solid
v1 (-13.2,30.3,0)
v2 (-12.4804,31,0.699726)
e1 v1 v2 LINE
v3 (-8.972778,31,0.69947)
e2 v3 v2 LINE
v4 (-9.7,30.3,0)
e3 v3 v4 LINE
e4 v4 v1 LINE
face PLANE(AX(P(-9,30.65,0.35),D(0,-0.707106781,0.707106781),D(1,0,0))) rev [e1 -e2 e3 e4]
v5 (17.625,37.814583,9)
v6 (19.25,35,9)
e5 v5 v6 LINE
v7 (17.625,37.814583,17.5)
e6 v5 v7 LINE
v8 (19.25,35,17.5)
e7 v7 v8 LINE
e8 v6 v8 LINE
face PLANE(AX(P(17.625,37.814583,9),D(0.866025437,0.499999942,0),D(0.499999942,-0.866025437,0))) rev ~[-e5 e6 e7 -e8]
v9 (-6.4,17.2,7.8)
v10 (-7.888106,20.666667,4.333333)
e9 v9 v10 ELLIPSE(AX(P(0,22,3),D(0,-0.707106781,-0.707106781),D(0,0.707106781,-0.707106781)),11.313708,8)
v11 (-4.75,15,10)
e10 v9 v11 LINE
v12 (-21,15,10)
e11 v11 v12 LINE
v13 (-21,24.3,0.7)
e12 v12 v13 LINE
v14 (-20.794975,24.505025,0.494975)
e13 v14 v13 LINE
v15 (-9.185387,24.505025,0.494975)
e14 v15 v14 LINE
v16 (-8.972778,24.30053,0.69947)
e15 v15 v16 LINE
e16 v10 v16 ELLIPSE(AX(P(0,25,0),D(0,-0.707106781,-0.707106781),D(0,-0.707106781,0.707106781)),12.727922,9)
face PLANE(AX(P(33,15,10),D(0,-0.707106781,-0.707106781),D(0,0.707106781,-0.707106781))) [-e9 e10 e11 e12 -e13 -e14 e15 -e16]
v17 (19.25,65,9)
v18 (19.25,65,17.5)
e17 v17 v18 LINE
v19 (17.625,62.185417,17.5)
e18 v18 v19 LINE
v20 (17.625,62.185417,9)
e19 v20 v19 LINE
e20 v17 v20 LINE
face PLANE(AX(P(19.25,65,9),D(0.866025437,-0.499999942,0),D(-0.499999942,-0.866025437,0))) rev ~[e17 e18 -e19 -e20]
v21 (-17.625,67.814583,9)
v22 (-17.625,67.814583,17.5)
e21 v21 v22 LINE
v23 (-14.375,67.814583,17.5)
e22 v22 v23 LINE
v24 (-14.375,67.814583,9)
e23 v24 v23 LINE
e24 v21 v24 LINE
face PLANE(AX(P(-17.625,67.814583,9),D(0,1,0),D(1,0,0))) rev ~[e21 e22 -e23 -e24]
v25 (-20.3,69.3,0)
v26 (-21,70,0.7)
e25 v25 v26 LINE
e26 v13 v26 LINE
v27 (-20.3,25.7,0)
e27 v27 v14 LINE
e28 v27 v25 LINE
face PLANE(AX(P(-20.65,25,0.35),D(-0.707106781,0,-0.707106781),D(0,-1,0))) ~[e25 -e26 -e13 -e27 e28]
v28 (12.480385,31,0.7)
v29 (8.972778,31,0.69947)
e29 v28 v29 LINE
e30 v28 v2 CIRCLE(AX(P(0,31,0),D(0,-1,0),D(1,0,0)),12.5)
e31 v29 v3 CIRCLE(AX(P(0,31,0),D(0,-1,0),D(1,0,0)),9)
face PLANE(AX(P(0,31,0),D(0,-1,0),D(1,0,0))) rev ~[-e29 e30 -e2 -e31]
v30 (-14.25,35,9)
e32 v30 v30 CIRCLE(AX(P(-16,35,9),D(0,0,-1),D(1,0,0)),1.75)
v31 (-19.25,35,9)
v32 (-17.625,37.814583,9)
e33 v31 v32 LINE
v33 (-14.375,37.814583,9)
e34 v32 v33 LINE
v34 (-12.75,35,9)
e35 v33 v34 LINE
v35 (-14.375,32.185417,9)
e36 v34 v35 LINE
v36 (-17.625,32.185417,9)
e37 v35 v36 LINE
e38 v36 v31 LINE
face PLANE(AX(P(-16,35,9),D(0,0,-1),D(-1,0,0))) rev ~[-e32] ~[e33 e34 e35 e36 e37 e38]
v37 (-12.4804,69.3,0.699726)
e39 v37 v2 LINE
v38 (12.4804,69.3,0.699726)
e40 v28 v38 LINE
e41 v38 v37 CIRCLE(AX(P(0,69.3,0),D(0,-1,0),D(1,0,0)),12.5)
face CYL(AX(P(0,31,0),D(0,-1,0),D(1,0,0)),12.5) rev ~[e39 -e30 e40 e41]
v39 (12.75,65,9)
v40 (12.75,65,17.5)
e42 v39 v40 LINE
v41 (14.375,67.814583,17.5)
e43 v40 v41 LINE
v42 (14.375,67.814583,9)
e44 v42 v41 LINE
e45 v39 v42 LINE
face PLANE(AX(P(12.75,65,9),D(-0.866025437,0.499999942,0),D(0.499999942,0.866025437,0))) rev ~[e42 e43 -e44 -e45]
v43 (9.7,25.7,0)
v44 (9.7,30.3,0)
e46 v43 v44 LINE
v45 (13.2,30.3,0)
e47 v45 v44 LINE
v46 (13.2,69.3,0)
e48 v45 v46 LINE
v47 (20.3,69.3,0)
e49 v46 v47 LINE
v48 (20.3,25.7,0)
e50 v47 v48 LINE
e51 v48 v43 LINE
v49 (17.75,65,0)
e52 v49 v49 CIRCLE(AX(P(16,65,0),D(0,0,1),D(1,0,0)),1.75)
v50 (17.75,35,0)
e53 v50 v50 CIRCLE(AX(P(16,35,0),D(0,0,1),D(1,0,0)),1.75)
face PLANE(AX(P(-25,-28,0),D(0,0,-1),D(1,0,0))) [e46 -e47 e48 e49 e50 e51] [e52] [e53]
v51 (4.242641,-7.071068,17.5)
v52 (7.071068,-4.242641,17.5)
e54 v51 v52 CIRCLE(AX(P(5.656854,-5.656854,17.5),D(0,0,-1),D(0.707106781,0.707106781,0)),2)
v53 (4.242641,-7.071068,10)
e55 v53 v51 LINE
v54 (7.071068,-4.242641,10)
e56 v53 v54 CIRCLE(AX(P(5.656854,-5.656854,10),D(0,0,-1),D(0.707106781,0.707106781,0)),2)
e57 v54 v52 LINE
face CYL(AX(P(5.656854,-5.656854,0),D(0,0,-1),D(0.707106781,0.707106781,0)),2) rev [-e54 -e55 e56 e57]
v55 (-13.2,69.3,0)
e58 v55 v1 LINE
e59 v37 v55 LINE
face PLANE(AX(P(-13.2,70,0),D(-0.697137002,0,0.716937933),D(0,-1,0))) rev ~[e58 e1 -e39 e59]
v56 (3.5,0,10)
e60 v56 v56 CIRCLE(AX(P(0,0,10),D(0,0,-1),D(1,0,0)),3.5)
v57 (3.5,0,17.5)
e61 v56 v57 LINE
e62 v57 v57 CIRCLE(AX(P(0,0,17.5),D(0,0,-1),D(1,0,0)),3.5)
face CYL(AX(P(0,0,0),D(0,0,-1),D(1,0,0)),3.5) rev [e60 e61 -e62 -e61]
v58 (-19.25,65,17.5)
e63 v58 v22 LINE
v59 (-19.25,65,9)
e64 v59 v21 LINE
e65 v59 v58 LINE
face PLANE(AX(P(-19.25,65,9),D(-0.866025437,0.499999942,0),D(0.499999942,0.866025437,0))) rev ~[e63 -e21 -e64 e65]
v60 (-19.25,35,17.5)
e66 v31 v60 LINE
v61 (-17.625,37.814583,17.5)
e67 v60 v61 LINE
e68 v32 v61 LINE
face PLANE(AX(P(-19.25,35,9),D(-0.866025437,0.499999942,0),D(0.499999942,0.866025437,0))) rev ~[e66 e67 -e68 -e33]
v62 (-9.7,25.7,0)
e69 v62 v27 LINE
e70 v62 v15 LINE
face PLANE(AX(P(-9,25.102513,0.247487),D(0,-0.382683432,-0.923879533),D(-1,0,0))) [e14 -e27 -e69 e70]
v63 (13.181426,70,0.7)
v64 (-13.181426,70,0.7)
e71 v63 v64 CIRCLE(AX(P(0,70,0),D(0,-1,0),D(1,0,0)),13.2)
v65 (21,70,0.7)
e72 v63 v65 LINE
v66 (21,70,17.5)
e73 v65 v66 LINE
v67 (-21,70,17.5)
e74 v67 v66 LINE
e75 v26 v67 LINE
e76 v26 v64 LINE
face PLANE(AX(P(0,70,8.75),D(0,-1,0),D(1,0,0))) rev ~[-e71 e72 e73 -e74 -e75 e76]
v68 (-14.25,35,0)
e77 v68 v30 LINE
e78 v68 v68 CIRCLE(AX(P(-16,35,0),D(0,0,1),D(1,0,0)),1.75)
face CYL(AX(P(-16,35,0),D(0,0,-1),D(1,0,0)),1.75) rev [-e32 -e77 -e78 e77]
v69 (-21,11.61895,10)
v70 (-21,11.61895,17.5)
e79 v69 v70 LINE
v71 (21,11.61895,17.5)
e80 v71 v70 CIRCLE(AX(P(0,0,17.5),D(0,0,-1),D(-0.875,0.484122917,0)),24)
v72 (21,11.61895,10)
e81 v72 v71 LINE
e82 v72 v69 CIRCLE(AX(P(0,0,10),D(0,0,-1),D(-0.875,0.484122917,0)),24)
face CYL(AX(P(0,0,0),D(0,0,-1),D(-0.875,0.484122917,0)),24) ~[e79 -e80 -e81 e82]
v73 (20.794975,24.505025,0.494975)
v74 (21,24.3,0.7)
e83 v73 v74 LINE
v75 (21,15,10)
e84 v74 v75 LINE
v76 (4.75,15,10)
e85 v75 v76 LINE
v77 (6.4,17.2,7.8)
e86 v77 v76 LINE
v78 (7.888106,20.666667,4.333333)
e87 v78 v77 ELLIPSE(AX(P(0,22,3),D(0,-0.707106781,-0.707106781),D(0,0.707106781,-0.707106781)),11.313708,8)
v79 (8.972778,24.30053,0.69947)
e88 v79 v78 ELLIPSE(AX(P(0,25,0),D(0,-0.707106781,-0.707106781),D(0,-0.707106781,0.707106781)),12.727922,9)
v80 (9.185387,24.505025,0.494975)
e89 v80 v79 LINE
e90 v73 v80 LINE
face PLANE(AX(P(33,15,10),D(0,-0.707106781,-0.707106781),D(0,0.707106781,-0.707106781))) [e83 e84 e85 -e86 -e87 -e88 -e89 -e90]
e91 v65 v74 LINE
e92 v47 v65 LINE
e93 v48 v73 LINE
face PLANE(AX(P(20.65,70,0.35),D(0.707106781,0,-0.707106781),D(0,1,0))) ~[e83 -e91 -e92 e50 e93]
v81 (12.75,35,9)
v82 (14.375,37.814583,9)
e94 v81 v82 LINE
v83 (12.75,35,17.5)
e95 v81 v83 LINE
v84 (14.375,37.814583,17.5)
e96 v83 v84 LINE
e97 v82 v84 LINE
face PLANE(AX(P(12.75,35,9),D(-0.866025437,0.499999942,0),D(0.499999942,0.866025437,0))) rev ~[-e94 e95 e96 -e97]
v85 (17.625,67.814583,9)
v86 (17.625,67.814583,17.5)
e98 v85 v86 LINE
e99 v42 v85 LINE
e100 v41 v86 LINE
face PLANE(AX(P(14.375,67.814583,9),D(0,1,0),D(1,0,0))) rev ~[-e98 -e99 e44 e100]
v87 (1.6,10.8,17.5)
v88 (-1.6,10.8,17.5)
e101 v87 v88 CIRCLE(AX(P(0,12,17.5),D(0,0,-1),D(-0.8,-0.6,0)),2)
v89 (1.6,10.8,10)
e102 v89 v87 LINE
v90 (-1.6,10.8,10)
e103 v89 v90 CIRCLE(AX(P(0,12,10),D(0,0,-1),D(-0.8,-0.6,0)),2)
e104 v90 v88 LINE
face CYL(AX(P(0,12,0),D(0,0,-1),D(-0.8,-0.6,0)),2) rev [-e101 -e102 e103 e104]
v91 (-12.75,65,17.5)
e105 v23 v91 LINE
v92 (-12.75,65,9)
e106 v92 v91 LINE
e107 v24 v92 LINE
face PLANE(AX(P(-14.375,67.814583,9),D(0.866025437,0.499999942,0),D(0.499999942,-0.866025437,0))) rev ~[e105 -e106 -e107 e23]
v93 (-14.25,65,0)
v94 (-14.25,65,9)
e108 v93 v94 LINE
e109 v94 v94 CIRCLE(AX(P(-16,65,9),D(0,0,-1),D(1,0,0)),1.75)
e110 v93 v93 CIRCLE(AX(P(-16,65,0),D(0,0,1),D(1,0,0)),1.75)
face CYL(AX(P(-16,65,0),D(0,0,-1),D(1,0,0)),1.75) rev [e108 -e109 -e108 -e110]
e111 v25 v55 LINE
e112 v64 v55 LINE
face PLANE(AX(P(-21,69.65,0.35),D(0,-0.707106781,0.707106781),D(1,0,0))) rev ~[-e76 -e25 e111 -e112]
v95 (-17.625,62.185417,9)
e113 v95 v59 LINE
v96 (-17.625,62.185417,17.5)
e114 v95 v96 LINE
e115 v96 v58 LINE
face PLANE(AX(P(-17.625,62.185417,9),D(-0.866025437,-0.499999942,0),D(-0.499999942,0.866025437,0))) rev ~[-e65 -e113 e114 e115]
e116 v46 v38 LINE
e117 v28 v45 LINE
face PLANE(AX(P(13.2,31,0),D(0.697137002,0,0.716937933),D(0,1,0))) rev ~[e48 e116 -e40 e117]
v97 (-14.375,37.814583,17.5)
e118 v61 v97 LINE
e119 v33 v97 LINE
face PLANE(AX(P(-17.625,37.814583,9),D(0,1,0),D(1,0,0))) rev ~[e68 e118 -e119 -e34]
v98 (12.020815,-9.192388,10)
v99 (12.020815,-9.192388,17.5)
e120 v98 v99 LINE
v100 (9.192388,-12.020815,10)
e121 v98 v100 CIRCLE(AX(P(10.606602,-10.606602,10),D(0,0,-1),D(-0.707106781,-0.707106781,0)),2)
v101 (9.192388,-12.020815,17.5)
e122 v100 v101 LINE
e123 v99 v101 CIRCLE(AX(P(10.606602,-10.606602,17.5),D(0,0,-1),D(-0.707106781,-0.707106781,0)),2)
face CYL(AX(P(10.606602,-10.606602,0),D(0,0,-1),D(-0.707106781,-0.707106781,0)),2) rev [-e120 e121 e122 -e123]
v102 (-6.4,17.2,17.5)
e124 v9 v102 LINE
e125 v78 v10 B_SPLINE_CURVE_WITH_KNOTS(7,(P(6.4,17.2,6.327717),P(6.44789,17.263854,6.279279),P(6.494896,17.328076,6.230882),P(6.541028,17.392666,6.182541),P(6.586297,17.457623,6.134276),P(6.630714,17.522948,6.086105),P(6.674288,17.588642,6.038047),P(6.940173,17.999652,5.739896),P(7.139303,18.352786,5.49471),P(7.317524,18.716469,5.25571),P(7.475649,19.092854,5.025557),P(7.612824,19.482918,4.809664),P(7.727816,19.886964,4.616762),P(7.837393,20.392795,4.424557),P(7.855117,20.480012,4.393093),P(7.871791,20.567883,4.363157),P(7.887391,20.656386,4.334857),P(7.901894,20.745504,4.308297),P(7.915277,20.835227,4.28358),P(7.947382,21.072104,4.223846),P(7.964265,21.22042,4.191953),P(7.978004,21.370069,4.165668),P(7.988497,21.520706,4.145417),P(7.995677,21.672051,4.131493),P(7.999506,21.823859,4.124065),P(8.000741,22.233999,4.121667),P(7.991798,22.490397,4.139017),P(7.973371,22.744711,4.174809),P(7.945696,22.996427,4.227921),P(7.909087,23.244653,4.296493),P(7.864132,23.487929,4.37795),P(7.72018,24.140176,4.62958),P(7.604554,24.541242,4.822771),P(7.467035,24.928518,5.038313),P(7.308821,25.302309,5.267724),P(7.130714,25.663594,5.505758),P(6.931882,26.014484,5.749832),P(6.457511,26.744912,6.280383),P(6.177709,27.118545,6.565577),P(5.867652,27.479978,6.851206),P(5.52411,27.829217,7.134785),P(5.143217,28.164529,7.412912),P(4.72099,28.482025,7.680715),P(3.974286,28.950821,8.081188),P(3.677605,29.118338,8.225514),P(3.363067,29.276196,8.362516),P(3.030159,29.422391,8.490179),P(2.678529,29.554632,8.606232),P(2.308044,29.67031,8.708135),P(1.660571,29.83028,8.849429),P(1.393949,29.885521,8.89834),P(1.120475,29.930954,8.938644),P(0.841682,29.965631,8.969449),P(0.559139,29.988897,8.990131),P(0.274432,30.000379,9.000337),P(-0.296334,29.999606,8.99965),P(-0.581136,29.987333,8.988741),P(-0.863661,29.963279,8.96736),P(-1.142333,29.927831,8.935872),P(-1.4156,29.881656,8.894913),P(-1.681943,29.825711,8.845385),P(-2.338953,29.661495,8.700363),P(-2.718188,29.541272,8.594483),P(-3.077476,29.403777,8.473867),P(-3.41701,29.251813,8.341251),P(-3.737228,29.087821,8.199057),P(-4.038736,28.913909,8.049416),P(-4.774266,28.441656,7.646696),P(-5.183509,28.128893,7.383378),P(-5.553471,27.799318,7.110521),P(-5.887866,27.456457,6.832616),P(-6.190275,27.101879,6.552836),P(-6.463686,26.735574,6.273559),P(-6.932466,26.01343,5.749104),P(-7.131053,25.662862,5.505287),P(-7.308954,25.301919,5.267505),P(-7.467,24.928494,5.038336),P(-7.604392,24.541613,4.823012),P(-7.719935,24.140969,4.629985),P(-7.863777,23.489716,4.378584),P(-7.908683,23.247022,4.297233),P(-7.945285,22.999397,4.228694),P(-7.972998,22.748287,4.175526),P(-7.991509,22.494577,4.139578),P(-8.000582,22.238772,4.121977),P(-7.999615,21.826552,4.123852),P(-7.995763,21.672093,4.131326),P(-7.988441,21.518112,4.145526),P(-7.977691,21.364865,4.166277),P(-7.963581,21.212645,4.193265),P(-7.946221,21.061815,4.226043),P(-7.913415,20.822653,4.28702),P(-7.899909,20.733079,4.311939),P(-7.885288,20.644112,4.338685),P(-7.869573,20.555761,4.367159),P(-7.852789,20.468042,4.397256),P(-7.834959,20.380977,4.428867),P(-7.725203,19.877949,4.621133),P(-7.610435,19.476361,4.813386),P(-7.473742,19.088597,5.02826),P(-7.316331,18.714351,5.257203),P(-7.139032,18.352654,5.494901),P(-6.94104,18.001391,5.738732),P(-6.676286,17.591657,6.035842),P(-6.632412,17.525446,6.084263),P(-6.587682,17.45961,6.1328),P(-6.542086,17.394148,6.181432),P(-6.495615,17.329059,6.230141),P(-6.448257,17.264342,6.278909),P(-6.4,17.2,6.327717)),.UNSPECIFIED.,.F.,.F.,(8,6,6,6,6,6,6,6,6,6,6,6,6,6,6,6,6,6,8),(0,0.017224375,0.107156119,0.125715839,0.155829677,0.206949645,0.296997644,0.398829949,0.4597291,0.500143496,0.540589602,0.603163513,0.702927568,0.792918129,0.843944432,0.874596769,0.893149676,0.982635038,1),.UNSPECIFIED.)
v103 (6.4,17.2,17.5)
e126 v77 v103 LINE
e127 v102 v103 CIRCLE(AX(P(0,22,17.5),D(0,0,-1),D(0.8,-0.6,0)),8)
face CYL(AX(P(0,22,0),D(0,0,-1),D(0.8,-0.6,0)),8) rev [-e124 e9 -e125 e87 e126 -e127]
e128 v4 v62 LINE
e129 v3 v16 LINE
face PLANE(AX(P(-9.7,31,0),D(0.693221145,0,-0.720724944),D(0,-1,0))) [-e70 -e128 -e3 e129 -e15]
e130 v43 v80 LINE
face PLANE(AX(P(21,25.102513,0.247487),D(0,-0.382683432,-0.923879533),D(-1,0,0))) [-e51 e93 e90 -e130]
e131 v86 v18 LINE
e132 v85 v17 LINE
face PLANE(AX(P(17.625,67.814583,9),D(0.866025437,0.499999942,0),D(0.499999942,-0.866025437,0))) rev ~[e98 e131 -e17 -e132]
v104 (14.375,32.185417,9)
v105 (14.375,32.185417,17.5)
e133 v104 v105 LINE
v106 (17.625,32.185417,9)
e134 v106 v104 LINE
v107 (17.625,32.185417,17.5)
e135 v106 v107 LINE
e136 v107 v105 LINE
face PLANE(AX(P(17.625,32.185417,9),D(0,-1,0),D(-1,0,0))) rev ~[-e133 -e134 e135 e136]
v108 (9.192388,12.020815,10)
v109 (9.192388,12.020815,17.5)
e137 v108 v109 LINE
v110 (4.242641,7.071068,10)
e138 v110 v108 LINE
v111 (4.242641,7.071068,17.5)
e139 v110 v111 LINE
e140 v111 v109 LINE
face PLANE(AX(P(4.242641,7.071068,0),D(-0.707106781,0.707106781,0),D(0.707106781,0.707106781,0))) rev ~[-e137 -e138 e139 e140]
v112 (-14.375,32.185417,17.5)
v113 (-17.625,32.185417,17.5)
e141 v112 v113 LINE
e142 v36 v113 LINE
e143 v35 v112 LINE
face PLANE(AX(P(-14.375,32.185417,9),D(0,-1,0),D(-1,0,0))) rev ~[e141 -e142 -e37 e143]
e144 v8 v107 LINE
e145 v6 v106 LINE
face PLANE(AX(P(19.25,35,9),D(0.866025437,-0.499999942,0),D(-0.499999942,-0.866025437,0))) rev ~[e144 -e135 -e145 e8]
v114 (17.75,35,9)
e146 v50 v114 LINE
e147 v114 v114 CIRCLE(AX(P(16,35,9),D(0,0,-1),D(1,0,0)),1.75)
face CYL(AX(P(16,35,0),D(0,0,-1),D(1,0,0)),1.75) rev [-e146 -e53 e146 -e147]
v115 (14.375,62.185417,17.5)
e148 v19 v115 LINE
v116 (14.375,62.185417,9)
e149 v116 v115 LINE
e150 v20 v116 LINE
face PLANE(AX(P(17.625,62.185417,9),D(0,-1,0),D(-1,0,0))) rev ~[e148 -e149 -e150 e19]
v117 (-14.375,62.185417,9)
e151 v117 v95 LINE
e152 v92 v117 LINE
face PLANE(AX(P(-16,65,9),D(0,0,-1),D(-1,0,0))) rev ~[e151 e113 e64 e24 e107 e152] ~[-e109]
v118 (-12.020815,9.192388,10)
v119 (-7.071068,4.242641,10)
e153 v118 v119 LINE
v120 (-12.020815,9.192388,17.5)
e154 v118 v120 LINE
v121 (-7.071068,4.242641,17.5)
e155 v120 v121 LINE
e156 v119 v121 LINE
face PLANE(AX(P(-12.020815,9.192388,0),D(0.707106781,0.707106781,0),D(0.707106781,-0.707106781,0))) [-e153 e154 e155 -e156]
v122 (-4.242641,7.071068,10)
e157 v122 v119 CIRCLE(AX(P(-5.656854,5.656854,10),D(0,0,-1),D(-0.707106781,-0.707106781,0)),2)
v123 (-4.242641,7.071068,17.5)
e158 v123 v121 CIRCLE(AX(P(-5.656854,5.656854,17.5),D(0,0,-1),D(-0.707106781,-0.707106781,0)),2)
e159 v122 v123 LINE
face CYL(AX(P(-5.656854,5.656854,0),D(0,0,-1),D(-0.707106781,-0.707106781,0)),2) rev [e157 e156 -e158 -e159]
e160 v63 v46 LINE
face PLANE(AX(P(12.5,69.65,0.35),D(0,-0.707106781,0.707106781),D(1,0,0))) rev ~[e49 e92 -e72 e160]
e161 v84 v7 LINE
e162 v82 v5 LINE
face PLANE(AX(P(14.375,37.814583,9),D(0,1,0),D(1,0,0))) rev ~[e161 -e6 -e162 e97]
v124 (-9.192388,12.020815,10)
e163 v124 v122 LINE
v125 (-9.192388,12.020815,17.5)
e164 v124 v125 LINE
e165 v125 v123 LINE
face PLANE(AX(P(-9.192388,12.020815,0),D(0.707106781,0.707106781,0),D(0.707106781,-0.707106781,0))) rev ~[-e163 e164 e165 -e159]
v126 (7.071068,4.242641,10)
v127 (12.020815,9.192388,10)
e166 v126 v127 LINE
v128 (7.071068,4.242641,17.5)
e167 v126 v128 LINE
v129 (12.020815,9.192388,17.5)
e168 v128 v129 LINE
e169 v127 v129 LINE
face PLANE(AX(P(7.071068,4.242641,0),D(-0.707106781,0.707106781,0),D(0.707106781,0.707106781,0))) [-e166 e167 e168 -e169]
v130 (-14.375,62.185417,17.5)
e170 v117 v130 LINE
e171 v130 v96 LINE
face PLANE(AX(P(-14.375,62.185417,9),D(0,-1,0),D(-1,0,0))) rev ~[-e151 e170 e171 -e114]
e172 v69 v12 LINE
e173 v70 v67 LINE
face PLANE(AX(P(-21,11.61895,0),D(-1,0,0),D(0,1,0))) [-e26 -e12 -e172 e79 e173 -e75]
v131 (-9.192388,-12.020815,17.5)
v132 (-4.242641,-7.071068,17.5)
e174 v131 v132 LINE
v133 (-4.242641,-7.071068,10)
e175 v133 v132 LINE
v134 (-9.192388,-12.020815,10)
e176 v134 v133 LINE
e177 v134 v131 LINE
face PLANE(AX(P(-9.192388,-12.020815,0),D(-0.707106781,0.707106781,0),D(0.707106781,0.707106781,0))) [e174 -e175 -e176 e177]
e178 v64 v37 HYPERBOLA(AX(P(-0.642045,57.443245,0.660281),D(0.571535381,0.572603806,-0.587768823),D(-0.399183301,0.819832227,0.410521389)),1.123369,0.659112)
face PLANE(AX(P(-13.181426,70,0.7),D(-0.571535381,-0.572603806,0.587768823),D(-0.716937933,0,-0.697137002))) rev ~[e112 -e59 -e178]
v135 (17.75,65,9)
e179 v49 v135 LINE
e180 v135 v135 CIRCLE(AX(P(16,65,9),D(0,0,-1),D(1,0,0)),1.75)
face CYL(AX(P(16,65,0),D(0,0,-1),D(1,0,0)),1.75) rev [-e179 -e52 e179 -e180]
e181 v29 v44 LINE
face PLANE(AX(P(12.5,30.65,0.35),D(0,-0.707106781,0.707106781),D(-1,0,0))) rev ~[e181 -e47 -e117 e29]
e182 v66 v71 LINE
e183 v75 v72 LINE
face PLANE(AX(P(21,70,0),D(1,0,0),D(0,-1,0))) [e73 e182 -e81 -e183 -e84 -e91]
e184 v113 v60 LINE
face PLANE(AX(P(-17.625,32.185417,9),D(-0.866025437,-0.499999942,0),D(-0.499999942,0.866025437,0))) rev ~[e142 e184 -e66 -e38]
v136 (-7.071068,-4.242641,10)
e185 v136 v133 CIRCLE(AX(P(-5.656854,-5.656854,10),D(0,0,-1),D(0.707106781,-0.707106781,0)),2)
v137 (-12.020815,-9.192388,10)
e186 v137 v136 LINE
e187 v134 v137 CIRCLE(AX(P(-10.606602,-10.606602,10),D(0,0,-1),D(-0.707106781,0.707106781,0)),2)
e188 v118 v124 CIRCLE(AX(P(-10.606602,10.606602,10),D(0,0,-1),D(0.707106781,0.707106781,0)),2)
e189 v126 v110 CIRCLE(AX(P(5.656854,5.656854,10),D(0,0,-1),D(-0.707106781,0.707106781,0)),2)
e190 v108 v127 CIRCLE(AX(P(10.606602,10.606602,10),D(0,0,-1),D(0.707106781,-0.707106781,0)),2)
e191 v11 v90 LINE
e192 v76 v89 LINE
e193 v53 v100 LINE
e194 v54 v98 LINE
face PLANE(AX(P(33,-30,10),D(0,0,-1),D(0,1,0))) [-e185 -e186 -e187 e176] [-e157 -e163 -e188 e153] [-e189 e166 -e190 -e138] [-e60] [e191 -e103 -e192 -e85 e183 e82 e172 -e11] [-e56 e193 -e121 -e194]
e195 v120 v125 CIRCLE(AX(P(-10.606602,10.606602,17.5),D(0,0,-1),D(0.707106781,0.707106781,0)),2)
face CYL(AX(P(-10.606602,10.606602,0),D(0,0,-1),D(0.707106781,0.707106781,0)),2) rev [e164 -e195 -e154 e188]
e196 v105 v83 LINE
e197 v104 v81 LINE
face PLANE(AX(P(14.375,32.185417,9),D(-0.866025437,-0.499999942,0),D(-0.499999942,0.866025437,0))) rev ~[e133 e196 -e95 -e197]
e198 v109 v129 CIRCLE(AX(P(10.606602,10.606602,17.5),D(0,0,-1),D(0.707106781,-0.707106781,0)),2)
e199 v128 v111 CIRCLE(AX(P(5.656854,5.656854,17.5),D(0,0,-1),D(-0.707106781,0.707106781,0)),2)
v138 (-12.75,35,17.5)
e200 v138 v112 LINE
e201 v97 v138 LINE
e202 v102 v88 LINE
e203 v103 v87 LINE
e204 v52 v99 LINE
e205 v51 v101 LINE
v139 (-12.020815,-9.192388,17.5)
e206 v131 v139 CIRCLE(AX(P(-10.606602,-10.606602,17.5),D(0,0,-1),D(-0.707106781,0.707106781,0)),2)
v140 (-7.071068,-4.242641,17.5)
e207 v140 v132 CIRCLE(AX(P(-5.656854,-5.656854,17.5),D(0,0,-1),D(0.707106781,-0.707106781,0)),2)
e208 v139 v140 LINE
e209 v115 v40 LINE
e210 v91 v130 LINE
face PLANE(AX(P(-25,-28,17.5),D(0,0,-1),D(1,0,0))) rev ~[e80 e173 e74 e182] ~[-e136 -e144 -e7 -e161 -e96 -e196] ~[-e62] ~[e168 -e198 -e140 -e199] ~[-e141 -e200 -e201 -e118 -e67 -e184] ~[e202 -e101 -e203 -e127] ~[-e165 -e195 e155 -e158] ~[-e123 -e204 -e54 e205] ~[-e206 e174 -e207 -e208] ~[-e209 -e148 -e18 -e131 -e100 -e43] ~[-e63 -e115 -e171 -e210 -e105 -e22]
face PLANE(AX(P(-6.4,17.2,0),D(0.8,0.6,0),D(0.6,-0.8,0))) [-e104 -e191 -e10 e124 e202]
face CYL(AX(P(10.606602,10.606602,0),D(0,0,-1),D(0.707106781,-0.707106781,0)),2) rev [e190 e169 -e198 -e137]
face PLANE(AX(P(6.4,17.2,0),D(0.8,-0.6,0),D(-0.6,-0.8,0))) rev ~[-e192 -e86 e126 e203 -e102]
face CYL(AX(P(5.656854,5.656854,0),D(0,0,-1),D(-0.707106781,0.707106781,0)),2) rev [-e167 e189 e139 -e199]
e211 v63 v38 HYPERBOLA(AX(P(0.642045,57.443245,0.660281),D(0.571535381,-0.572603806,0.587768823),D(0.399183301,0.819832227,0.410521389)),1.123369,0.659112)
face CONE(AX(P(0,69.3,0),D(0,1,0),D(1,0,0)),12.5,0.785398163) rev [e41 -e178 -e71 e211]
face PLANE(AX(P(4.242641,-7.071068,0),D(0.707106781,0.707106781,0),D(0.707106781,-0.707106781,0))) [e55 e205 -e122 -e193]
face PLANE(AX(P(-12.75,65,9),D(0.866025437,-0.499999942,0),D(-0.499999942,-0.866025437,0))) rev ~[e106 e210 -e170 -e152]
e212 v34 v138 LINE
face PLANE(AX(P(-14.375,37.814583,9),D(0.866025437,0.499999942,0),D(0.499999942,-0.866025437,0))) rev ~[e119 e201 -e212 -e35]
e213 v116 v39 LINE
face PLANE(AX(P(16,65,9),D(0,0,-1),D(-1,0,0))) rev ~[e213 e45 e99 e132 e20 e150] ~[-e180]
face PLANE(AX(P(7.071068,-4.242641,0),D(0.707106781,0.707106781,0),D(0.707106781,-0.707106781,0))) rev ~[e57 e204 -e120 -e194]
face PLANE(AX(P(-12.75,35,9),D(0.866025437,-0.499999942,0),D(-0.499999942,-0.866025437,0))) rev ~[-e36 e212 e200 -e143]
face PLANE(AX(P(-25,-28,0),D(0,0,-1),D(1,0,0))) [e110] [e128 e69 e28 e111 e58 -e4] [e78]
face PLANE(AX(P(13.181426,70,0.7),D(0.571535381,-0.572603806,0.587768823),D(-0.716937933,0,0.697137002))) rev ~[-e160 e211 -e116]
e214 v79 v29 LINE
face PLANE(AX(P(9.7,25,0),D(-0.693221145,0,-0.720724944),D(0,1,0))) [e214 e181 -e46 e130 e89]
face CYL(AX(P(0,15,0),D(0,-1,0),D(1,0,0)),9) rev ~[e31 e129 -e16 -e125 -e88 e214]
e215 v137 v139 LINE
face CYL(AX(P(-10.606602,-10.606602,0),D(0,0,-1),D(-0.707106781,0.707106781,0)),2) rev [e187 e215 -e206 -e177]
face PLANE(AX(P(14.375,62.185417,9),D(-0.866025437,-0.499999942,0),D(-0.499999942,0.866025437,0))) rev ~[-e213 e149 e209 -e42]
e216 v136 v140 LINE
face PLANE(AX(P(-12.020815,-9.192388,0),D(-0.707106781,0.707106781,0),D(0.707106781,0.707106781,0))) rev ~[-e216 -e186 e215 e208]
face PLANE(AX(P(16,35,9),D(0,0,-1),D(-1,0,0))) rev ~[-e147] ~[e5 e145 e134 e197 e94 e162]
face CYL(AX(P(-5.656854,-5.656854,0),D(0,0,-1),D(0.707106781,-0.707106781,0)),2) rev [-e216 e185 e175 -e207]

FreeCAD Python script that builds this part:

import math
import FreeCAD as App
import Part
import Sketcher
Q = App.Units.Quantity


def edges_at(feature, points):
    """Names of the edges that pass closest to the given points."""
    edges = feature.Shape.Edges
    near = lambda p: min(range(len(edges)), key=lambda i: edges[i].distToShape(Part.Vertex(*p))[0])
    return sorted({f"Edge{near(p) + 1}" for p in points})

doc = App.newDocument("Part")
body = doc.addObject("PartDesign::Body", "Body")
body.AllowCompound = True

# Sketch on XY plane
sketch1 = body.newObject("Sketcher::SketchObject", "Sketch")
sketch1.AttachmentSupport = (doc.getObject("XY_Plane"), [""])
sketch1.MapMode = "FlatFace"
sketch1.addGeometry([
    Part.LineSegment(App.Vector(-14.4, 37.8, 0), App.Vector(-17.6, 37.8, 0)),  # 0
    Part.LineSegment(App.Vector(-17.6, 37.8, 0), App.Vector(-19.2, 35, 0)),  # 1
    Part.LineSegment(App.Vector(-19.2, 35, 0), App.Vector(-17.6, 32.2, 0)),  # 2
    Part.LineSegment(App.Vector(-17.6, 32.2, 0), App.Vector(-14.4, 32.2, 0)),  # 3
    Part.LineSegment(App.Vector(-14.4, 32.2, 0), App.Vector(-12.8, 35, 0)),  # 4
    Part.LineSegment(App.Vector(-12.8, 35, 0), App.Vector(-14.4, 37.8, 0)),  # 5
    Part.LineSegment(App.Vector(17.6, 37.8, 0), App.Vector(14.4, 37.8, 0)),  # 6
    Part.LineSegment(App.Vector(14.4, 37.8, 0), App.Vector(12.8, 35, 0)),  # 7
    Part.LineSegment(App.Vector(12.8, 35, 0), App.Vector(14.4, 32.2, 0)),  # 8
    Part.LineSegment(App.Vector(14.4, 32.2, 0), App.Vector(17.6, 32.2, 0)),  # 9
    Part.LineSegment(App.Vector(17.6, 32.2, 0), App.Vector(19.2, 35, 0)),  # 10
    Part.LineSegment(App.Vector(19.2, 35, 0), App.Vector(17.6, 37.8, 0)),  # 11
    Part.LineSegment(App.Vector(17.6, 67.8, 0), App.Vector(14.4, 67.8, 0)),  # 12
    Part.LineSegment(App.Vector(14.4, 67.8, 0), App.Vector(12.8, 65, 0)),  # 13
    Part.LineSegment(App.Vector(12.8, 65, 0), App.Vector(14.4, 62.2, 0)),  # 14
    Part.LineSegment(App.Vector(14.4, 62.2, 0), App.Vector(17.6, 62.2, 0)),  # 15
    Part.LineSegment(App.Vector(17.6, 62.2, 0), App.Vector(19.2, 65, 0)),  # 16
    Part.LineSegment(App.Vector(19.2, 65, 0), App.Vector(17.6, 67.8, 0)),  # 17
    Part.LineSegment(App.Vector(-14.4, 67.8, 0), App.Vector(-17.6, 67.8, 0)),  # 18
    Part.LineSegment(App.Vector(-17.6, 67.8, 0), App.Vector(-19.2, 65, 0)),  # 19
    Part.LineSegment(App.Vector(-19.2, 65, 0), App.Vector(-17.6, 62.2, 0)),  # 20
    Part.LineSegment(App.Vector(-17.6, 62.2, 0), App.Vector(-14.4, 62.2, 0)),  # 21
    Part.LineSegment(App.Vector(-14.4, 62.2, 0), App.Vector(-12.8, 65, 0)),  # 22
    Part.LineSegment(App.Vector(-12.8, 65, 0), App.Vector(-14.4, 67.8, 0)),  # 23
], False)
sketch1.addConstraint([
    Sketcher.Constraint("Coincident", 0, 2, 1, 1),
    Sketcher.Constraint("Coincident", 1, 2, 2, 1),
    Sketcher.Constraint("Coincident", 2, 2, 3, 1),
    Sketcher.Constraint("Coincident", 3, 2, 4, 1),
    Sketcher.Constraint("Coincident", 4, 2, 5, 1),
    Sketcher.Constraint("Coincident", 5, 2, 0, 1),
    Sketcher.Constraint("Coincident", 6, 2, 7, 1),
    Sketcher.Constraint("Coincident", 7, 2, 8, 1),
    Sketcher.Constraint("Coincident", 8, 2, 9, 1),
    Sketcher.Constraint("Coincident", 9, 2, 10, 1),
    Sketcher.Constraint("Coincident", 10, 2, 11, 1),
    Sketcher.Constraint("Coincident", 11, 2, 6, 1),
    Sketcher.Constraint("Coincident", 12, 2, 13, 1),
    Sketcher.Constraint("Coincident", 13, 2, 14, 1),
    Sketcher.Constraint("Coincident", 14, 2, 15, 1),
    Sketcher.Constraint("Coincident", 15, 2, 16, 1),
    Sketcher.Constraint("Coincident", 16, 2, 17, 1),
    Sketcher.Constraint("Coincident", 17, 2, 12, 1),
    Sketcher.Constraint("Coincident", 18, 2, 19, 1),
    Sketcher.Constraint("Coincident", 19, 2, 20, 1),
    Sketcher.Constraint("Coincident", 20, 2, 21, 1),
    Sketcher.Constraint("Coincident", 21, 2, 22, 1),
    Sketcher.Constraint("Coincident", 22, 2, 23, 1),
    Sketcher.Constraint("Coincident", 23, 2, 18, 1),
    Sketcher.Constraint("Horizontal", 0),
    Sketcher.Constraint("Horizontal", 3),
    Sketcher.Constraint("Horizontal", 6),
    Sketcher.Constraint("Horizontal", 9),
    Sketcher.Constraint("Horizontal", 12),
    Sketcher.Constraint("Horizontal", 15),
    Sketcher.Constraint("Horizontal", 18),
    Sketcher.Constraint("Horizontal", 21),
    Sketcher.Constraint("Symmetric", 5, 2, 6, 2, -2),
    Sketcher.Constraint("Symmetric", 4, 2, 7, 2, -2),
    Sketcher.Constraint("Symmetric", 3, 2, 8, 2, -2),
    Sketcher.Constraint("Symmetric", 1, 2, 10, 2, -2),
    Sketcher.Constraint("Symmetric", 17, 2, 18, 2, -2),
    Sketcher.Constraint("Symmetric", 16, 2, 19, 2, -2),
    Sketcher.Constraint("Symmetric", 15, 2, 20, 2, -2),
    Sketcher.Constraint("Symmetric", 13, 2, 22, 2, -2),
    Sketcher.Constraint("Parallel", 1, 4),
    Sketcher.Constraint("Parallel", 2, 5),
    Sketcher.Constraint("Parallel", 4, 7),
    Sketcher.Constraint("Parallel", 7, 10),
    Sketcher.Constraint("Parallel", 8, 11),
    Sketcher.Constraint("Parallel", 10, 13),
    Sketcher.Constraint("Parallel", 11, 14),
    Sketcher.Constraint("Parallel", 13, 16),
    Sketcher.Constraint("Parallel", 14, 17),
    Sketcher.Constraint("Parallel", 19, 22),
    Sketcher.Constraint("Parallel", 20, 23),
    Sketcher.Constraint("Horizontal", 1, 2, 4, 2),
    Sketcher.Constraint("Horizontal", 13, 2, 16, 2),
    Sketcher.Constraint("Vertical", 0, 2, 2, 2),
    Sketcher.Constraint("Vertical", 8, 2, 12, 2),
    Sketcher.Constraint("Vertical", 7, 2, 13, 2),
    Sketcher.Constraint("Vertical", 12, 2, 14, 2),
    Sketcher.Constraint("Vertical", 11, 2, 15, 2),
    Sketcher.Constraint("Angle", 1, Q("-119.999996 deg")),
    Sketcher.Constraint("DistanceY", -1, 1, 1, 2, 35.0),
    Sketcher.Constraint("DistanceY", -1, 1, 13, 2, 65.0),
    Sketcher.Constraint("DistanceX", 0, 2, 6, 2, 32.0),
    Sketcher.Constraint("DistanceX", 0, 2, 0, 1, 3.25),
    Sketcher.Constraint("DistanceX", 1, 2, 4, 2, 6.5),
])
pad1 = body.newObject("PartDesign::Pad", "Pad")
pad1.Profile = sketch1
pad1.Length = 10
body2 = doc.addObject("PartDesign::Body", "Body001")
body2.AllowCompound = True
doc.recompute()

body.Placement = App.Placement(App.Vector(0, 0, 9), App.Rotation(App.Vector(0, 0, 1), 0))
boolean = body2.newObject("PartDesign::Boolean", "Boolean")
boolean.Type = "Fuse"
boolean.addObjects([body])
body3 = doc.addObject("PartDesign::Body", "Body002")

# Sketch on XY plane
sketch2 = body3.newObject("Sketcher::SketchObject", "Sketch001")
sketch2.AttachmentSupport = (doc.getObject("XY_Plane002"), [""])
sketch2.MapMode = "FlatFace"
sketch2.addGeometry(Part.Circle(App.Vector(0, 0, 0), App.Vector(0, 0, 1), 9), False)
sketch2.addConstraint([
    Sketcher.Constraint("Coincident", 0, 3, -1, 1),
    Sketcher.Constraint("Diameter", 0, 18.0),
])
pad2 = body3.newObject("PartDesign::Pad", "Pad001")
pad2.Profile = sketch2
pad2.Length = 27
pad2.Reversed = True
body4 = doc.addObject("PartDesign::Body", "Body003")
doc.recompute()

body3.Placement = App.Placement(App.Vector(0, 0, 0), App.Rotation(App.Vector(1, 0, 0), 90))
boolean2 = body4.newObject("PartDesign::Boolean", "Boolean001")
boolean2.Type = "Fuse"
boolean2.addObjects([body3])
body5 = doc.addObject("PartDesign::Body", "Body004")
doc.recompute()

body4.Placement = App.Placement(App.Vector(0, 33, 0), App.Rotation(App.Vector(0, 0, 1), 0))
boolean3 = body5.newObject("PartDesign::Boolean", "Boolean002")
boolean3.Type = "Fuse"
boolean3.addObjects([body4])
body6 = doc.addObject("PartDesign::Body", "Body005")
doc.recompute()

body5.Placement = App.Placement(App.Vector(0, -18, 0), App.Rotation(App.Vector(0, 0, 1), 0))
boolean4 = body6.newObject("PartDesign::Boolean", "Boolean003")
boolean4.Type = "Fuse"
boolean4.addObjects([body5])
body7 = doc.addObject("PartDesign::Body", "Body006")
body7.AllowCompound = True

# Sketch on XY plane
sketch3 = body7.newObject("Sketcher::SketchObject", "Sketch002")
sketch3.AttachmentSupport = (doc.getObject("XY_Plane006"), [""])
sketch3.MapMode = "FlatFace"
sketch3.addGeometry([
    Part.Circle(App.Vector(0, 0, 0), App.Vector(0, 0, 1), 3.5),  # 0
    Part.Circle(App.Vector(-16, 35, 0), App.Vector(0, 0, 1), 1.8),  # 1
    Part.Circle(App.Vector(-16, 65, 0), App.Vector(0, 0, 1), 1.8),  # 2
    Part.Circle(App.Vector(16, 65, 0), App.Vector(0, 0, 1), 1.8),  # 3
    Part.Circle(App.Vector(16, 35, 0), App.Vector(0, 0, 1), 1.8),  # 4
    Part.ArcOfCircle(Part.Circle(App.Vector(-10.6, -10.6, 0), App.Vector(0, 0, 1), 2), math.radians(135), math.radians(315)),  # 5
    Part.LineSegment(App.Vector(-9.2, -12, 0), App.Vector(-4.2, -7.1, 0)),  # 6
    Part.ArcOfCircle(Part.Circle(App.Vector(-5.7, -5.7, 0), App.Vector(0, 0, 1), 2), math.radians(-45), math.radians(135)),  # 7
    Part.LineSegment(App.Vector(-7.1, -4.2, 0), App.Vector(-12, -9.2, 0)),  # 8
    Part.ArcOfCircle(Part.Circle(App.Vector(5.7, -5.7, 0), App.Vector(0, 0, 1), 2), math.radians(45), math.radians(225)),  # 9
    Part.LineSegment(App.Vector(4.2, -7.1, 0), App.Vector(9.2, -12, 0)),  # 10
    Part.ArcOfCircle(Part.Circle(App.Vector(10.6, -10.6, 0), App.Vector(0, 0, 1), 2), math.radians(-135), math.radians(45)),  # 11
    Part.LineSegment(App.Vector(12, -9.2, 0), App.Vector(7.1, -4.2, 0)),  # 12
    Part.ArcOfCircle(Part.Circle(App.Vector(5.7, 5.7, 0), App.Vector(0, 0, 1), 2), math.radians(135), math.radians(315)),  # 13
    Part.LineSegment(App.Vector(7.1, 4.2, 0), App.Vector(12, 9.2, 0)),  # 14
    Part.ArcOfCircle(Part.Circle(App.Vector(10.6, 10.6, 0), App.Vector(0, 0, 1), 2), math.radians(-45), math.radians(135)),  # 15
    Part.LineSegment(App.Vector(9.2, 12, 0), App.Vector(4.2, 7.1, 0)),  # 16
    Part.ArcOfCircle(Part.Circle(App.Vector(-10.6, 10.6, 0), App.Vector(0, 0, 1), 2), math.radians(45), math.radians(225)),  # 17
    Part.LineSegment(App.Vector(-12, 9.2, 0), App.Vector(-7.1, 4.2, 0)),  # 18
    Part.ArcOfCircle(Part.Circle(App.Vector(-5.7, 5.7, 0), App.Vector(0, 0, 1), 2), math.radians(-135), math.radians(45)),  # 19
    Part.LineSegment(App.Vector(-4.2, 7.1, 0), App.Vector(-9.2, 12, 0)),  # 20
    Part.ArcOfCircle(Part.Circle(App.Vector(0, 22, 0), App.Vector(0, 0, 1), 8), math.radians(-37), math.radians(217)),  # 21
    Part.LineSegment(App.Vector(-6.4, 17.2, 0), App.Vector(-1.6, 10.8, 0)),  # 22
    Part.ArcOfCircle(Part.Circle(App.Vector(0, 12, 0), App.Vector(0, 0, 1), 2), math.radians(-143), math.radians(-37)),  # 23
    Part.LineSegment(App.Vector(1.6, 10.8, 0), App.Vector(6.4, 17.2, 0)),  # 24
    Part.ArcOfCircle(Part.Circle(App.Vector(0, 0, 0), App.Vector(0, 0, 1), 24), math.radians(151), math.radians(389)),  # 25
    Part.LineSegment(App.Vector(-21, 11.6, 0), App.Vector(-21, 70, 0)),  # 26
    Part.LineSegment(App.Vector(-21, 70, 0), App.Vector(-30, 70, 0)),  # 27
    Part.LineSegment(App.Vector(-30, 70, 0), App.Vector(-30, -30, 0)),  # 28
    Part.LineSegment(App.Vector(-30, -30, 0), App.Vector(30, -30, 0)),  # 29
    Part.LineSegment(App.Vector(30, -30, 0), App.Vector(30, 70, 0)),  # 30
    Part.LineSegment(App.Vector(30, 70, 0), App.Vector(21, 70, 0)),  # 31
    Part.LineSegment(App.Vector(21, 70, 0), App.Vector(21, 11.6, 0)),  # 32
], False)
sketch3.addConstraint([
    Sketcher.Constraint("Tangent", 5, 2, 6, 1),
    Sketcher.Constraint("Tangent", 6, 2, 7, 1),
    Sketcher.Constraint("Tangent", 7, 2, 8, 1),
    Sketcher.Constraint("Tangent", 8, 2, 5, 1),
    Sketcher.Constraint("Tangent", 9, 2, 10, 1),
    Sketcher.Constraint("Tangent", 10, 2, 11, 1),
    Sketcher.Constraint("Tangent", 11, 2, 12, 1),
    Sketcher.Constraint("Tangent", 12, 2, 9, 1),
    Sketcher.Constraint("Tangent", 13, 2, 14, 1),
    Sketcher.Constraint("Tangent", 14, 2, 15, 1),
    Sketcher.Constraint("Tangent", 15, 2, 16, 1),
    Sketcher.Constraint("Tangent", 16, 2, 13, 1),
    Sketcher.Constraint("Tangent", 17, 2, 18, 1),
    Sketcher.Constraint("Tangent", 18, 2, 19, 1),
    Sketcher.Constraint("Tangent", 19, 2, 20, 1),
    Sketcher.Constraint("Tangent", 20, 2, 17, 1),
    Sketcher.Constraint("Tangent", 21, 2, 22, 1),
    Sketcher.Constraint("Tangent", 22, 2, 23, 1),
    Sketcher.Constraint("Tangent", 23, 2, 24, 1),
    Sketcher.Constraint("Tangent", 24, 2, 21, 1),
    Sketcher.Constraint("Coincident", 25, 1, 26, 1),
    Sketcher.Constraint("Coincident", 26, 2, 27, 1),
    Sketcher.Constraint("Coincident", 27, 2, 28, 1),
    Sketcher.Constraint("Coincident", 28, 2, 29, 1),
    Sketcher.Constraint("Coincident", 29, 2, 30, 1),
    Sketcher.Constraint("Coincident", 30, 2, 31, 1),
    Sketcher.Constraint("Coincident", 31, 2, 32, 1),
    Sketcher.Constraint("Coincident", 32, 2, 25, 2),
    Sketcher.Constraint("Vertical", 26),
    Sketcher.Constraint("Horizontal", 27),
    Sketcher.Constraint("Vertical", 28),
    Sketcher.Constraint("Horizontal", 29),
    Sketcher.Constraint("Vertical", 30),
    Sketcher.Constraint("Horizontal", 31),
    Sketcher.Constraint("Vertical", 32),
    Sketcher.Constraint("Coincident", 0, 3, -1, 1),
    Sketcher.Constraint("Coincident", 25, 3, -1, 1),
    Sketcher.Constraint("Equal", 1, 2),
    Sketcher.Constraint("Equal", 2, 3),
    Sketcher.Constraint("Equal", 3, 4),
    Sketcher.Constraint("Equal", 5, 7),
    Sketcher.Constraint("Equal", 7, 9),
    Sketcher.Constraint("Equal", 9, 11),
    Sketcher.Constraint("Equal", 11, 13),
    Sketcher.Constraint("Equal", 13, 15),
    Sketcher.Constraint("Equal", 15, 17),
    Sketcher.Constraint("Equal", 17, 19),
    Sketcher.Constraint("Equal", 19, 23),
    Sketcher.Constraint("Symmetric", 7, 3, 13, 3, -1, 1),
    Sketcher.Constraint("Symmetric", 5, 3, 15, 3, -1, 1),
    Sketcher.Constraint("Symmetric", 11, 3, 17, 3, -1, 1),
    Sketcher.Constraint("Symmetric", 9, 3, 19, 3, -1, 1),
    Sketcher.Constraint("Symmetric", 2, 3, 3, 3, -2),
    Sketcher.Constraint("Symmetric", 1, 3, 4, 3, -2),
    Sketcher.Constraint("Symmetric", 7, 3, 9, 3, -2),
    Sketcher.Constraint("Symmetric", 5, 3, 11, 3, -2),
    Sketcher.Constraint("Symmetric", 22, 2, 23, 2, -2),
    Sketcher.Constraint("Symmetric", 27, 2, 30, 2, -2),
    Sketcher.Constraint("Perpendicular", 8, 10),
    Sketcher.Constraint("Horizontal", 25, 1, 32, 2),
    Sketcher.Constraint("Vertical", 1, 3, 2, 3),
    Sketcher.Constraint("Diameter", 0, 7.0),
    Sketcher.Constraint("Radius", 5, 2.0),
    Sketcher.Constraint("Radius", 21, 8.0),
    Sketcher.Constraint("Radius", 25, 24.0),
    Sketcher.Constraint("Diameter", 1, 3.5),
    Sketcher.Constraint("DistanceX", 27, 2, 27, 1, 9.0),
    Sketcher.Constraint("DistanceX", 29, 1, 29, 2, 60.0),
    Sketcher.Constraint("DistanceY", 28, 2, 28, 1, 100.0),
    Sketcher.Constraint("Distance", 6, 6.999999),
    Sketcher.Constraint("Distance", 22, 8.0),
    Sketcher.Constraint("DistanceX", 1, 3, -1, 1, 16.0),
    Sketcher.Constraint("DistanceY", -1, 1, 1, 3, 35.0),
    Sketcher.Constraint("DistanceY", -1, 1, 2, 3, 65.0),
    Sketcher.Constraint("DistanceY", -1, 1, 21, 3, 22.0),
    Sketcher.Constraint("DistanceY", -1, 1, 26, 2, 70.0),
    Sketcher.Constraint("DistanceX", 5, 3, -1, 1, 10.606602),
    Sketcher.Constraint("DistanceY", 5, 3, -1, 1, 10.606602),
])
pad3 = body7.newObject("PartDesign::Pad", "Pad002")
pad3.Profile = sketch3
pad3.Length = 30
body8 = doc.addObject("PartDesign::Body", "Body007")

# Sketch on XY plane
sketch4 = body8.newObject("Sketcher::SketchObject", "Sketch003")
sketch4.AttachmentSupport = (doc.getObject("XY_Plane007"), [""])
sketch4.MapMode = "FlatFace"
sketch4.addGeometry(Part.Circle(App.Vector(0, 0, 0), App.Vector(0, 0, 1), 12), False)
sketch4.addConstraint([
    Sketcher.Constraint("Coincident", 0, 3, -1, 1),
    Sketcher.Constraint("Diameter", 0, 25.0),
])
pad4 = body8.newObject("PartDesign::Pad", "Pad003")
pad4.Profile = sketch4
pad4.Length = 50
pad4.Reversed = True
body9 = doc.addObject("PartDesign::Body", "Body008")
doc.recompute()

body8.Placement = App.Placement(App.Vector(0, 0, 0), App.Rotation(App.Vector(1, 0, 0), 90))
boolean5 = body9.newObject("PartDesign::Boolean", "Boolean004")
boolean5.Type = "Fuse"
boolean5.addObjects([body8])
body10 = doc.addObject("PartDesign::Body", "Body009")
doc.recompute()

body9.Placement = App.Placement(App.Vector(0, 32, 0), App.Rotation(App.Vector(0, 0, 1), 0))
boolean6 = body10.newObject("PartDesign::Boolean", "Boolean005")
boolean6.Type = "Fuse"
boolean6.addObjects([body9])
body11 = doc.addObject("PartDesign::Body", "Body010")
doc.recompute()

body10.Placement = App.Placement(App.Vector(0, -1, 0), App.Rotation(App.Vector(0, 0, 1), 0))
boolean7 = body11.newObject("PartDesign::Boolean", "Boolean006")
boolean7.Type = "Fuse"
boolean7.addObjects([body10])
body12 = doc.addObject("PartDesign::Body", "Body011")

# Sketch on YZ plane
sketch5 = body12.newObject("Sketcher::SketchObject", "Sketch004")
sketch5.AttachmentSupport = (doc.getObject("YZ_Plane011"), [""])
sketch5.MapMode = "FlatFace"
sketch5.AttachmentOffset = App.Placement(App.Vector(0, 0, 33), App.Rotation())
sketch5.addGeometry([
    Part.LineSegment(App.Vector(15, 10, 0), App.Vector(-30, 10, 0)),
    Part.LineSegment(App.Vector(-30, 10, 0), App.Vector(-30, 0, 0)),
    Part.LineSegment(App.Vector(-30, 0, 0), App.Vector(25, 0, 0)),
    Part.LineSegment(App.Vector(25, 0, 0), App.Vector(15, 10, 0)),
], False)
sketch5.addConstraint([
    Sketcher.Constraint("Coincident", 0, 2, 1, 1),
    Sketcher.Constraint("Coincident", 1, 2, 2, 1),
    Sketcher.Constraint("Coincident", 2, 2, 3, 1),
    Sketcher.Constraint("Coincident", 3, 2, 0, 1),
    Sketcher.Constraint("Horizontal", 0),
    Sketcher.Constraint("Vertical", 1),
    Sketcher.Constraint("Horizontal", 2),
    Sketcher.Constraint("PointOnObject", 1, 2, -1),
    Sketcher.Constraint("DistanceX", 0, 2, 0, 1, 45.0),
    Sketcher.Constraint("DistanceX", 2, 1, 2, 2, 55.0),
    Sketcher.Constraint("DistanceY", 1, 2, 1, 1, 10.0),
    Sketcher.Constraint("DistanceX", 0, 2, -1, 1, 30.0),
])
pad5 = body12.newObject("PartDesign::Pad", "Pad004")
pad5.Profile = sketch5
pad5.Length = 60
pad5.Reversed = True
body13 = doc.addObject("PartDesign::Body", "Body012")

# Sketch on XY plane
sketch6 = body13.newObject("Sketcher::SketchObject", "Sketch005")
sketch6.AttachmentSupport = (doc.getObject("XY_Plane012"), [""])
sketch6.MapMode = "FlatFace"
sketch6.addGeometry([
    Part.LineSegment(App.Vector(-25, 18, 0), App.Vector(-25, 0, 0)),
    Part.LineSegment(App.Vector(-25, 0, 0), App.Vector(25, 0, 0)),
    Part.LineSegment(App.Vector(25, 0, 0), App.Vector(25, 18, 0)),
    Part.LineSegment(App.Vector(25, 18, 0), App.Vector(-25, 18, 0)),
], False)
sketch6.addConstraint([
    Sketcher.Constraint("Coincident", 0, 2, 1, 1),
    Sketcher.Constraint("Coincident", 1, 2, 2, 1),
    Sketcher.Constraint("Coincident", 2, 2, 3, 1),
    Sketcher.Constraint("Coincident", 3, 2, 0, 1),
    Sketcher.Constraint("Vertical", 0),
    Sketcher.Constraint("Horizontal", 1),
    Sketcher.Constraint("Vertical", 2),
    Sketcher.Constraint("Horizontal", 3),
    Sketcher.Constraint("Symmetric", 0, 2, 1, 2, -1, 1),
    Sketcher.Constraint("DistanceX", 1, 1, 1, 2, 50.0),
    Sketcher.Constraint("DistanceY", 0, 2, 0, 1, 17.5),
])
pad6 = body13.newObject("PartDesign::Pad", "Pad005")
pad6.Profile = sketch6
pad6.Length = 98
pad6.Reversed = True
body14 = doc.addObject("PartDesign::Body", "Body013")
doc.recompute()

body13.Placement = App.Placement(App.Vector(0, 0, 0), App.Rotation(App.Vector(1, 0, 0), 90))
boolean8 = body14.newObject("PartDesign::Boolean", "Boolean007")
boolean8.Type = "Fuse"
boolean8.addObjects([body13])
body15 = doc.addObject("PartDesign::Body", "Body014")
doc.recompute()

body14.Placement = App.Placement(App.Vector(0, -28, 0), App.Rotation(App.Vector(0, 0, 1), 0))
boolean9 = body15.newObject("PartDesign::Boolean", "Boolean008")
boolean9.Type = "Fuse"
boolean9.addObjects([body14])
doc.recompute()

boolean10 = body15.newObject("PartDesign::Boolean", "Boolean009")
boolean10.Type = "Cut"
boolean10.addObjects([body12])
doc.recompute()

boolean11 = body15.newObject("PartDesign::Boolean", "Boolean010")
boolean11.Type = "Cut"
boolean11.addObjects([body11])
doc.recompute()

boolean12 = body15.newObject("PartDesign::Boolean", "Boolean011")
boolean12.Type = "Cut"
boolean12.addObjects([body7])
doc.recompute()

boolean13 = body15.newObject("PartDesign::Boolean", "Boolean012")
boolean13.Type = "Cut"
boolean13.addObjects([body6])
doc.recompute()

boolean14 = body15.newObject("PartDesign::Boolean", "Boolean013")
boolean14.Type = "Cut"
boolean14.addObjects([body2])
doc.recompute()

chamfer = body15.newObject("PartDesign::Chamfer", "Chamfer")
chamfer.Base = (boolean14, edges_at(boolean14, [
    (-21, 47.5, 0),
    (16.75, 70, 0),
    (0, 70, 12.5),
    (-16.75, 70, 0),
    (21, 47.5, 0),
    (-15, 25, 0),
    (-9, 28, 0),
    (-12.5, 50.5, 0),
    (-10.75, 31, 0),
    (15, 25, 0),
    (9, 28, 0),
    (10.75, 31, 0),
    (12.5, 50.5, 0),
]))
chamfer.Size = 0.7

doc.recompute()
